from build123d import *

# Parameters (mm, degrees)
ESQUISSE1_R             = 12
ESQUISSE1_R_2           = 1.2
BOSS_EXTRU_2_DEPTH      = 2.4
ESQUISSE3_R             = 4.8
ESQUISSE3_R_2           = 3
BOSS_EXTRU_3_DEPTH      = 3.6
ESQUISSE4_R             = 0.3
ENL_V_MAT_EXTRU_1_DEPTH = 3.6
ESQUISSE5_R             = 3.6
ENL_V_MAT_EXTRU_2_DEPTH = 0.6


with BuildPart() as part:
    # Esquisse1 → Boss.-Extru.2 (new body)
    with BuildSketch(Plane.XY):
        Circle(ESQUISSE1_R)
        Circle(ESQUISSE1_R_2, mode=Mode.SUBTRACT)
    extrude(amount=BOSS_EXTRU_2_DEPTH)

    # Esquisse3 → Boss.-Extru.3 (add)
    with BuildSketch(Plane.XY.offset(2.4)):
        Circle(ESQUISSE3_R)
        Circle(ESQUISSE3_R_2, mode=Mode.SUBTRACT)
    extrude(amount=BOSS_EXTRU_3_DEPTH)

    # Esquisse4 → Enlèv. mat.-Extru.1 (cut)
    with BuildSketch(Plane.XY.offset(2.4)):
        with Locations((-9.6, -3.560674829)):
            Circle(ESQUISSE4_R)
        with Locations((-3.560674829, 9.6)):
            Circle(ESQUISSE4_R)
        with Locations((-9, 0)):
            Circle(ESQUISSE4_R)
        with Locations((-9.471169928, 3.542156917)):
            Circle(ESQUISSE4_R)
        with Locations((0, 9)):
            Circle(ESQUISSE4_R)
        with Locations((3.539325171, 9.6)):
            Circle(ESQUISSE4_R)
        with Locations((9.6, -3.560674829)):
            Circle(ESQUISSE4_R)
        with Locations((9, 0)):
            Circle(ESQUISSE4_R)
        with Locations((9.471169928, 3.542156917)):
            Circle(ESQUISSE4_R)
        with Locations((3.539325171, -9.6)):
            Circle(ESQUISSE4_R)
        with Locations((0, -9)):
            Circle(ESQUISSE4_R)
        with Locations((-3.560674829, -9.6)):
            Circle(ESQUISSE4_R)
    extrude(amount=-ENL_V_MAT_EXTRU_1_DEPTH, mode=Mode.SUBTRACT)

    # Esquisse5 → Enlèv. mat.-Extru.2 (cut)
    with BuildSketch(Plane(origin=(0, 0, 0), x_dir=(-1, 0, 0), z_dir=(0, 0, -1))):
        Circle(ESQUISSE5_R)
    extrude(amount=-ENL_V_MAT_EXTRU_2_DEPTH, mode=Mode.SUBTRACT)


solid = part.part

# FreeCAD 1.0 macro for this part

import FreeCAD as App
import Part
import Sketcher
from FreeCAD import Vector

doc = App.newDocument("Part")
params = doc.addObject("Spreadsheet::Sheet", "Params")
for row, (alias, value) in enumerate([
    ("sketch1_diameter", "24 mm"),
    ("sketch1_diameter2", "2.4 mm"),
    ("pad1_length", "2.4 mm"),
    ("sketch2_diameter", "6 mm"),
    ("sketch2_diameter2", "9.6 mm"),
    ("pad2_length", "3.6 mm"),
    ("sketch3_diameter", "0.6 mm"),
    ("pocket1_length", "3.6 mm"),
    ("sketch4_diameter", "7.2 mm"),
    ("pocket2_length", "0.6 mm"),
], start=1):
    params.set(f"A{row}", alias)
    params.set(f"B{row}", "=" + value)
    params.setAlias(f"B{row}", alias)

body = doc.addObject("PartDesign::Body", "Body")

# Sketch on XY plane
sketch1 = body.newObject("Sketcher::SketchObject", "Sketch")
sketch1.AttachmentSupport = (doc.getObject("XY_Plane"), [""])
sketch1.MapMode = "FlatFace"
sketch1.addGeometry([
    Part.Circle(Vector(0, 0, 0), Vector(0, 0, 1), 12),
    Part.Circle(Vector(0, 0, 0), Vector(0, 0, 1), 1.2),
], False)
sketch1.addConstraint([
    Sketcher.Constraint("Coincident", 0, 3, -1, 1),
    Sketcher.Constraint("Coincident", 1, 3, -1, 1),
    Sketcher.Constraint("Diameter", 0, 24.0),
    Sketcher.Constraint("Diameter", 1, 2.4),
])
sketch1.setExpression("Constraints[2]", "Params.sketch1_diameter")
sketch1.setExpression("Constraints[3]", "Params.sketch1_diameter2")
pad1 = body.newObject("PartDesign::Pad", "Pad")
pad1.Profile = sketch1
pad1.setExpression("Length", "Params.pad1_length")

# Sketch on XY plane
sketch2 = body.newObject("Sketcher::SketchObject", "Sketch001")
sketch2.AttachmentSupport = (doc.getObject("XY_Plane"), [""])
sketch2.MapMode = "FlatFace"
sketch2.AttachmentOffset = App.Placement(Vector(0, 0, 2.4), App.Rotation())
sketch2.addGeometry([
    Part.Circle(Vector(0, 0, 0), Vector(0, 0, 1), 4.8),
    Part.Circle(Vector(0, 0, 0), Vector(0, 0, 1), 3),
], False)
sketch2.addConstraint([
    Sketcher.Constraint("Coincident", 0, 3, -1, 1),
    Sketcher.Constraint("Coincident", 1, 3, -1, 1),
    Sketcher.Constraint("Diameter", 1, 6.0),
    Sketcher.Constraint("Diameter", 0, 9.6),
])
sketch2.setExpression("Constraints[2]", "Params.sketch2_diameter")
sketch2.setExpression("Constraints[3]", "Params.sketch2_diameter2")
pad2 = body.newObject("PartDesign::Pad", "Pad001")
pad2.Profile = sketch2
pad2.setExpression("Length", "Params.pad2_length")

# Sketch on XY plane
sketch3 = body.newObject("Sketcher::SketchObject", "Sketch002")
sketch3.AttachmentSupport = (doc.getObject("XY_Plane"), [""])
sketch3.MapMode = "FlatFace"
sketch3.AttachmentOffset = App.Placement(Vector(0, 0, 2.4), App.Rotation())
sketch3.addGeometry([
    Part.Circle(Vector(-9.6, -3.56, 0), Vector(0, 0, 1), 0.3),  # 0
    Part.Circle(Vector(-3.56, 9.6, 0), Vector(0, 0, 1), 0.3),  # 1
    Part.Circle(Vector(-9, 0, 0), Vector(0, 0, 1), 0.3),  # 2
    Part.Circle(Vector(-9.47, 3.54, 0), Vector(0, 0, 1), 0.3),  # 3
    Part.Circle(Vector(0, 9, 0), Vector(0, 0, 1), 0.3),  # 4
    Part.Circle(Vector(3.54, 9.6, 0), Vector(0, 0, 1), 0.3),  # 5
    Part.Circle(Vector(9.6, -3.56, 0), Vector(0, 0, 1), 0.3),  # 6
    Part.Circle(Vector(9, 0, 0), Vector(0, 0, 1), 0.3),  # 7
    Part.Circle(Vector(9.47, 3.54, 0), Vector(0, 0, 1), 0.3),  # 8
    Part.Circle(Vector(3.54, -9.6, 0), Vector(0, 0, 1), 0.3),  # 9
    Part.Circle(Vector(0, -9, 0), Vector(0, 0, 1), 0.3),  # 10
    Part.Circle(Vector(-3.56, -9.6, 0), Vector(0, 0, 1), 0.3),  # 11
], False)
sketch3.addConstraint([
    Sketcher.Constraint("Equal", 0, 1),
    Sketcher.Constraint("Equal", 1, 2),
    Sketcher.Constraint("Equal", 2, 3),
    Sketcher.Constraint("Equal", 3, 4),
    Sketcher.Constraint("Equal", 4, 5),
    Sketcher.Constraint("Equal", 5, 6),
    Sketcher.Constraint("Equal", 6, 7),
    Sketcher.Constraint("Equal", 7, 8),
    Sketcher.Constraint("Equal", 8, 9),
    Sketcher.Constraint("Equal", 9, 10),
    Sketcher.Constraint("Equal", 10, 11),
    Sketcher.Constraint("Symmetric", 2, 3, 7, 3, -1, 1),
    Sketcher.Constraint("Symmetric", 4, 3, 10, 3, -1, 1),
    Sketcher.Constraint("Symmetric", 0, 3, 6, 3, -2),
    Sketcher.Constraint("Symmetric", 3, 3, 8, 3, -2),
    Sketcher.Constraint("Symmetric", 5, 3, 9, 3, -1),
    Sketcher.Constraint("Symmetric", 1, 3, 11, 3, -1),
    Sketcher.Constraint("PointOnObject", 2, 3, -1),
    Sketcher.Constraint("PointOnObject", 4, 3, -2),
    Sketcher.Constraint("Horizontal", 1, 3, 5, 3),
    Sketcher.Constraint("Diameter", 0, 0.6),
    Sketcher.Constraint("DistanceX", 2, 3, -1, 1, 9.0),
    Sketcher.Constraint("DistanceY", -1, 1, 4, 3, 9.0),
    Sketcher.Constraint("DistanceX", 0, 3, -1, 1, 9.6),
    Sketcher.Constraint("DistanceY", -1, 1, 1, 3, 9.6),
    Sketcher.Constraint("DistanceX", 1, 3, 5, 3, 7.1),
    Sketcher.Constraint("DistanceX", 3, 3, -1, 1, 9.47117),
    Sketcher.Constraint("DistanceY", 0, 3, 3, 3, 7.102832),
    Sketcher.Constraint("DistanceY", 0, 3, -1, 1, 3.560675),
    Sketcher.Constraint("DistanceX", 1, 3, -1, 1, 3.560675),
])
sketch3.setExpression("Constraints[20]", "Params.sketch3_diameter")
pocket1 = body.newObject("PartDesign::Pocket", "Pocket")
pocket1.Profile = sketch3
pocket1.setExpression("Length", "Params.pocket1_length")

# Sketch on XY plane
sketch4 = body.newObject("Sketcher::SketchObject", "Sketch003")
sketch4.AttachmentSupport = (doc.getObject("XY_Plane"), [""])
sketch4.MapMode = "FlatFace"
sketch4.addGeometry(Part.Circle(Vector(0, 0, 0), Vector(0, 0, 1), 3.6), False)
sketch4.addConstraint([
    Sketcher.Constraint("Coincident", 0, 3, -1, 1),
    Sketcher.Constraint("Diameter", 0, 7.2),
])
sketch4.setExpression("Constraints[1]", "Params.sketch4_diameter")
pocket2 = body.newObject("PartDesign::Pocket", "Pocket001")
pocket2.Profile = sketch4
pocket2.setExpression("Length", "Params.pocket2_length")
pocket2.Reversed = True

doc.recompute()
